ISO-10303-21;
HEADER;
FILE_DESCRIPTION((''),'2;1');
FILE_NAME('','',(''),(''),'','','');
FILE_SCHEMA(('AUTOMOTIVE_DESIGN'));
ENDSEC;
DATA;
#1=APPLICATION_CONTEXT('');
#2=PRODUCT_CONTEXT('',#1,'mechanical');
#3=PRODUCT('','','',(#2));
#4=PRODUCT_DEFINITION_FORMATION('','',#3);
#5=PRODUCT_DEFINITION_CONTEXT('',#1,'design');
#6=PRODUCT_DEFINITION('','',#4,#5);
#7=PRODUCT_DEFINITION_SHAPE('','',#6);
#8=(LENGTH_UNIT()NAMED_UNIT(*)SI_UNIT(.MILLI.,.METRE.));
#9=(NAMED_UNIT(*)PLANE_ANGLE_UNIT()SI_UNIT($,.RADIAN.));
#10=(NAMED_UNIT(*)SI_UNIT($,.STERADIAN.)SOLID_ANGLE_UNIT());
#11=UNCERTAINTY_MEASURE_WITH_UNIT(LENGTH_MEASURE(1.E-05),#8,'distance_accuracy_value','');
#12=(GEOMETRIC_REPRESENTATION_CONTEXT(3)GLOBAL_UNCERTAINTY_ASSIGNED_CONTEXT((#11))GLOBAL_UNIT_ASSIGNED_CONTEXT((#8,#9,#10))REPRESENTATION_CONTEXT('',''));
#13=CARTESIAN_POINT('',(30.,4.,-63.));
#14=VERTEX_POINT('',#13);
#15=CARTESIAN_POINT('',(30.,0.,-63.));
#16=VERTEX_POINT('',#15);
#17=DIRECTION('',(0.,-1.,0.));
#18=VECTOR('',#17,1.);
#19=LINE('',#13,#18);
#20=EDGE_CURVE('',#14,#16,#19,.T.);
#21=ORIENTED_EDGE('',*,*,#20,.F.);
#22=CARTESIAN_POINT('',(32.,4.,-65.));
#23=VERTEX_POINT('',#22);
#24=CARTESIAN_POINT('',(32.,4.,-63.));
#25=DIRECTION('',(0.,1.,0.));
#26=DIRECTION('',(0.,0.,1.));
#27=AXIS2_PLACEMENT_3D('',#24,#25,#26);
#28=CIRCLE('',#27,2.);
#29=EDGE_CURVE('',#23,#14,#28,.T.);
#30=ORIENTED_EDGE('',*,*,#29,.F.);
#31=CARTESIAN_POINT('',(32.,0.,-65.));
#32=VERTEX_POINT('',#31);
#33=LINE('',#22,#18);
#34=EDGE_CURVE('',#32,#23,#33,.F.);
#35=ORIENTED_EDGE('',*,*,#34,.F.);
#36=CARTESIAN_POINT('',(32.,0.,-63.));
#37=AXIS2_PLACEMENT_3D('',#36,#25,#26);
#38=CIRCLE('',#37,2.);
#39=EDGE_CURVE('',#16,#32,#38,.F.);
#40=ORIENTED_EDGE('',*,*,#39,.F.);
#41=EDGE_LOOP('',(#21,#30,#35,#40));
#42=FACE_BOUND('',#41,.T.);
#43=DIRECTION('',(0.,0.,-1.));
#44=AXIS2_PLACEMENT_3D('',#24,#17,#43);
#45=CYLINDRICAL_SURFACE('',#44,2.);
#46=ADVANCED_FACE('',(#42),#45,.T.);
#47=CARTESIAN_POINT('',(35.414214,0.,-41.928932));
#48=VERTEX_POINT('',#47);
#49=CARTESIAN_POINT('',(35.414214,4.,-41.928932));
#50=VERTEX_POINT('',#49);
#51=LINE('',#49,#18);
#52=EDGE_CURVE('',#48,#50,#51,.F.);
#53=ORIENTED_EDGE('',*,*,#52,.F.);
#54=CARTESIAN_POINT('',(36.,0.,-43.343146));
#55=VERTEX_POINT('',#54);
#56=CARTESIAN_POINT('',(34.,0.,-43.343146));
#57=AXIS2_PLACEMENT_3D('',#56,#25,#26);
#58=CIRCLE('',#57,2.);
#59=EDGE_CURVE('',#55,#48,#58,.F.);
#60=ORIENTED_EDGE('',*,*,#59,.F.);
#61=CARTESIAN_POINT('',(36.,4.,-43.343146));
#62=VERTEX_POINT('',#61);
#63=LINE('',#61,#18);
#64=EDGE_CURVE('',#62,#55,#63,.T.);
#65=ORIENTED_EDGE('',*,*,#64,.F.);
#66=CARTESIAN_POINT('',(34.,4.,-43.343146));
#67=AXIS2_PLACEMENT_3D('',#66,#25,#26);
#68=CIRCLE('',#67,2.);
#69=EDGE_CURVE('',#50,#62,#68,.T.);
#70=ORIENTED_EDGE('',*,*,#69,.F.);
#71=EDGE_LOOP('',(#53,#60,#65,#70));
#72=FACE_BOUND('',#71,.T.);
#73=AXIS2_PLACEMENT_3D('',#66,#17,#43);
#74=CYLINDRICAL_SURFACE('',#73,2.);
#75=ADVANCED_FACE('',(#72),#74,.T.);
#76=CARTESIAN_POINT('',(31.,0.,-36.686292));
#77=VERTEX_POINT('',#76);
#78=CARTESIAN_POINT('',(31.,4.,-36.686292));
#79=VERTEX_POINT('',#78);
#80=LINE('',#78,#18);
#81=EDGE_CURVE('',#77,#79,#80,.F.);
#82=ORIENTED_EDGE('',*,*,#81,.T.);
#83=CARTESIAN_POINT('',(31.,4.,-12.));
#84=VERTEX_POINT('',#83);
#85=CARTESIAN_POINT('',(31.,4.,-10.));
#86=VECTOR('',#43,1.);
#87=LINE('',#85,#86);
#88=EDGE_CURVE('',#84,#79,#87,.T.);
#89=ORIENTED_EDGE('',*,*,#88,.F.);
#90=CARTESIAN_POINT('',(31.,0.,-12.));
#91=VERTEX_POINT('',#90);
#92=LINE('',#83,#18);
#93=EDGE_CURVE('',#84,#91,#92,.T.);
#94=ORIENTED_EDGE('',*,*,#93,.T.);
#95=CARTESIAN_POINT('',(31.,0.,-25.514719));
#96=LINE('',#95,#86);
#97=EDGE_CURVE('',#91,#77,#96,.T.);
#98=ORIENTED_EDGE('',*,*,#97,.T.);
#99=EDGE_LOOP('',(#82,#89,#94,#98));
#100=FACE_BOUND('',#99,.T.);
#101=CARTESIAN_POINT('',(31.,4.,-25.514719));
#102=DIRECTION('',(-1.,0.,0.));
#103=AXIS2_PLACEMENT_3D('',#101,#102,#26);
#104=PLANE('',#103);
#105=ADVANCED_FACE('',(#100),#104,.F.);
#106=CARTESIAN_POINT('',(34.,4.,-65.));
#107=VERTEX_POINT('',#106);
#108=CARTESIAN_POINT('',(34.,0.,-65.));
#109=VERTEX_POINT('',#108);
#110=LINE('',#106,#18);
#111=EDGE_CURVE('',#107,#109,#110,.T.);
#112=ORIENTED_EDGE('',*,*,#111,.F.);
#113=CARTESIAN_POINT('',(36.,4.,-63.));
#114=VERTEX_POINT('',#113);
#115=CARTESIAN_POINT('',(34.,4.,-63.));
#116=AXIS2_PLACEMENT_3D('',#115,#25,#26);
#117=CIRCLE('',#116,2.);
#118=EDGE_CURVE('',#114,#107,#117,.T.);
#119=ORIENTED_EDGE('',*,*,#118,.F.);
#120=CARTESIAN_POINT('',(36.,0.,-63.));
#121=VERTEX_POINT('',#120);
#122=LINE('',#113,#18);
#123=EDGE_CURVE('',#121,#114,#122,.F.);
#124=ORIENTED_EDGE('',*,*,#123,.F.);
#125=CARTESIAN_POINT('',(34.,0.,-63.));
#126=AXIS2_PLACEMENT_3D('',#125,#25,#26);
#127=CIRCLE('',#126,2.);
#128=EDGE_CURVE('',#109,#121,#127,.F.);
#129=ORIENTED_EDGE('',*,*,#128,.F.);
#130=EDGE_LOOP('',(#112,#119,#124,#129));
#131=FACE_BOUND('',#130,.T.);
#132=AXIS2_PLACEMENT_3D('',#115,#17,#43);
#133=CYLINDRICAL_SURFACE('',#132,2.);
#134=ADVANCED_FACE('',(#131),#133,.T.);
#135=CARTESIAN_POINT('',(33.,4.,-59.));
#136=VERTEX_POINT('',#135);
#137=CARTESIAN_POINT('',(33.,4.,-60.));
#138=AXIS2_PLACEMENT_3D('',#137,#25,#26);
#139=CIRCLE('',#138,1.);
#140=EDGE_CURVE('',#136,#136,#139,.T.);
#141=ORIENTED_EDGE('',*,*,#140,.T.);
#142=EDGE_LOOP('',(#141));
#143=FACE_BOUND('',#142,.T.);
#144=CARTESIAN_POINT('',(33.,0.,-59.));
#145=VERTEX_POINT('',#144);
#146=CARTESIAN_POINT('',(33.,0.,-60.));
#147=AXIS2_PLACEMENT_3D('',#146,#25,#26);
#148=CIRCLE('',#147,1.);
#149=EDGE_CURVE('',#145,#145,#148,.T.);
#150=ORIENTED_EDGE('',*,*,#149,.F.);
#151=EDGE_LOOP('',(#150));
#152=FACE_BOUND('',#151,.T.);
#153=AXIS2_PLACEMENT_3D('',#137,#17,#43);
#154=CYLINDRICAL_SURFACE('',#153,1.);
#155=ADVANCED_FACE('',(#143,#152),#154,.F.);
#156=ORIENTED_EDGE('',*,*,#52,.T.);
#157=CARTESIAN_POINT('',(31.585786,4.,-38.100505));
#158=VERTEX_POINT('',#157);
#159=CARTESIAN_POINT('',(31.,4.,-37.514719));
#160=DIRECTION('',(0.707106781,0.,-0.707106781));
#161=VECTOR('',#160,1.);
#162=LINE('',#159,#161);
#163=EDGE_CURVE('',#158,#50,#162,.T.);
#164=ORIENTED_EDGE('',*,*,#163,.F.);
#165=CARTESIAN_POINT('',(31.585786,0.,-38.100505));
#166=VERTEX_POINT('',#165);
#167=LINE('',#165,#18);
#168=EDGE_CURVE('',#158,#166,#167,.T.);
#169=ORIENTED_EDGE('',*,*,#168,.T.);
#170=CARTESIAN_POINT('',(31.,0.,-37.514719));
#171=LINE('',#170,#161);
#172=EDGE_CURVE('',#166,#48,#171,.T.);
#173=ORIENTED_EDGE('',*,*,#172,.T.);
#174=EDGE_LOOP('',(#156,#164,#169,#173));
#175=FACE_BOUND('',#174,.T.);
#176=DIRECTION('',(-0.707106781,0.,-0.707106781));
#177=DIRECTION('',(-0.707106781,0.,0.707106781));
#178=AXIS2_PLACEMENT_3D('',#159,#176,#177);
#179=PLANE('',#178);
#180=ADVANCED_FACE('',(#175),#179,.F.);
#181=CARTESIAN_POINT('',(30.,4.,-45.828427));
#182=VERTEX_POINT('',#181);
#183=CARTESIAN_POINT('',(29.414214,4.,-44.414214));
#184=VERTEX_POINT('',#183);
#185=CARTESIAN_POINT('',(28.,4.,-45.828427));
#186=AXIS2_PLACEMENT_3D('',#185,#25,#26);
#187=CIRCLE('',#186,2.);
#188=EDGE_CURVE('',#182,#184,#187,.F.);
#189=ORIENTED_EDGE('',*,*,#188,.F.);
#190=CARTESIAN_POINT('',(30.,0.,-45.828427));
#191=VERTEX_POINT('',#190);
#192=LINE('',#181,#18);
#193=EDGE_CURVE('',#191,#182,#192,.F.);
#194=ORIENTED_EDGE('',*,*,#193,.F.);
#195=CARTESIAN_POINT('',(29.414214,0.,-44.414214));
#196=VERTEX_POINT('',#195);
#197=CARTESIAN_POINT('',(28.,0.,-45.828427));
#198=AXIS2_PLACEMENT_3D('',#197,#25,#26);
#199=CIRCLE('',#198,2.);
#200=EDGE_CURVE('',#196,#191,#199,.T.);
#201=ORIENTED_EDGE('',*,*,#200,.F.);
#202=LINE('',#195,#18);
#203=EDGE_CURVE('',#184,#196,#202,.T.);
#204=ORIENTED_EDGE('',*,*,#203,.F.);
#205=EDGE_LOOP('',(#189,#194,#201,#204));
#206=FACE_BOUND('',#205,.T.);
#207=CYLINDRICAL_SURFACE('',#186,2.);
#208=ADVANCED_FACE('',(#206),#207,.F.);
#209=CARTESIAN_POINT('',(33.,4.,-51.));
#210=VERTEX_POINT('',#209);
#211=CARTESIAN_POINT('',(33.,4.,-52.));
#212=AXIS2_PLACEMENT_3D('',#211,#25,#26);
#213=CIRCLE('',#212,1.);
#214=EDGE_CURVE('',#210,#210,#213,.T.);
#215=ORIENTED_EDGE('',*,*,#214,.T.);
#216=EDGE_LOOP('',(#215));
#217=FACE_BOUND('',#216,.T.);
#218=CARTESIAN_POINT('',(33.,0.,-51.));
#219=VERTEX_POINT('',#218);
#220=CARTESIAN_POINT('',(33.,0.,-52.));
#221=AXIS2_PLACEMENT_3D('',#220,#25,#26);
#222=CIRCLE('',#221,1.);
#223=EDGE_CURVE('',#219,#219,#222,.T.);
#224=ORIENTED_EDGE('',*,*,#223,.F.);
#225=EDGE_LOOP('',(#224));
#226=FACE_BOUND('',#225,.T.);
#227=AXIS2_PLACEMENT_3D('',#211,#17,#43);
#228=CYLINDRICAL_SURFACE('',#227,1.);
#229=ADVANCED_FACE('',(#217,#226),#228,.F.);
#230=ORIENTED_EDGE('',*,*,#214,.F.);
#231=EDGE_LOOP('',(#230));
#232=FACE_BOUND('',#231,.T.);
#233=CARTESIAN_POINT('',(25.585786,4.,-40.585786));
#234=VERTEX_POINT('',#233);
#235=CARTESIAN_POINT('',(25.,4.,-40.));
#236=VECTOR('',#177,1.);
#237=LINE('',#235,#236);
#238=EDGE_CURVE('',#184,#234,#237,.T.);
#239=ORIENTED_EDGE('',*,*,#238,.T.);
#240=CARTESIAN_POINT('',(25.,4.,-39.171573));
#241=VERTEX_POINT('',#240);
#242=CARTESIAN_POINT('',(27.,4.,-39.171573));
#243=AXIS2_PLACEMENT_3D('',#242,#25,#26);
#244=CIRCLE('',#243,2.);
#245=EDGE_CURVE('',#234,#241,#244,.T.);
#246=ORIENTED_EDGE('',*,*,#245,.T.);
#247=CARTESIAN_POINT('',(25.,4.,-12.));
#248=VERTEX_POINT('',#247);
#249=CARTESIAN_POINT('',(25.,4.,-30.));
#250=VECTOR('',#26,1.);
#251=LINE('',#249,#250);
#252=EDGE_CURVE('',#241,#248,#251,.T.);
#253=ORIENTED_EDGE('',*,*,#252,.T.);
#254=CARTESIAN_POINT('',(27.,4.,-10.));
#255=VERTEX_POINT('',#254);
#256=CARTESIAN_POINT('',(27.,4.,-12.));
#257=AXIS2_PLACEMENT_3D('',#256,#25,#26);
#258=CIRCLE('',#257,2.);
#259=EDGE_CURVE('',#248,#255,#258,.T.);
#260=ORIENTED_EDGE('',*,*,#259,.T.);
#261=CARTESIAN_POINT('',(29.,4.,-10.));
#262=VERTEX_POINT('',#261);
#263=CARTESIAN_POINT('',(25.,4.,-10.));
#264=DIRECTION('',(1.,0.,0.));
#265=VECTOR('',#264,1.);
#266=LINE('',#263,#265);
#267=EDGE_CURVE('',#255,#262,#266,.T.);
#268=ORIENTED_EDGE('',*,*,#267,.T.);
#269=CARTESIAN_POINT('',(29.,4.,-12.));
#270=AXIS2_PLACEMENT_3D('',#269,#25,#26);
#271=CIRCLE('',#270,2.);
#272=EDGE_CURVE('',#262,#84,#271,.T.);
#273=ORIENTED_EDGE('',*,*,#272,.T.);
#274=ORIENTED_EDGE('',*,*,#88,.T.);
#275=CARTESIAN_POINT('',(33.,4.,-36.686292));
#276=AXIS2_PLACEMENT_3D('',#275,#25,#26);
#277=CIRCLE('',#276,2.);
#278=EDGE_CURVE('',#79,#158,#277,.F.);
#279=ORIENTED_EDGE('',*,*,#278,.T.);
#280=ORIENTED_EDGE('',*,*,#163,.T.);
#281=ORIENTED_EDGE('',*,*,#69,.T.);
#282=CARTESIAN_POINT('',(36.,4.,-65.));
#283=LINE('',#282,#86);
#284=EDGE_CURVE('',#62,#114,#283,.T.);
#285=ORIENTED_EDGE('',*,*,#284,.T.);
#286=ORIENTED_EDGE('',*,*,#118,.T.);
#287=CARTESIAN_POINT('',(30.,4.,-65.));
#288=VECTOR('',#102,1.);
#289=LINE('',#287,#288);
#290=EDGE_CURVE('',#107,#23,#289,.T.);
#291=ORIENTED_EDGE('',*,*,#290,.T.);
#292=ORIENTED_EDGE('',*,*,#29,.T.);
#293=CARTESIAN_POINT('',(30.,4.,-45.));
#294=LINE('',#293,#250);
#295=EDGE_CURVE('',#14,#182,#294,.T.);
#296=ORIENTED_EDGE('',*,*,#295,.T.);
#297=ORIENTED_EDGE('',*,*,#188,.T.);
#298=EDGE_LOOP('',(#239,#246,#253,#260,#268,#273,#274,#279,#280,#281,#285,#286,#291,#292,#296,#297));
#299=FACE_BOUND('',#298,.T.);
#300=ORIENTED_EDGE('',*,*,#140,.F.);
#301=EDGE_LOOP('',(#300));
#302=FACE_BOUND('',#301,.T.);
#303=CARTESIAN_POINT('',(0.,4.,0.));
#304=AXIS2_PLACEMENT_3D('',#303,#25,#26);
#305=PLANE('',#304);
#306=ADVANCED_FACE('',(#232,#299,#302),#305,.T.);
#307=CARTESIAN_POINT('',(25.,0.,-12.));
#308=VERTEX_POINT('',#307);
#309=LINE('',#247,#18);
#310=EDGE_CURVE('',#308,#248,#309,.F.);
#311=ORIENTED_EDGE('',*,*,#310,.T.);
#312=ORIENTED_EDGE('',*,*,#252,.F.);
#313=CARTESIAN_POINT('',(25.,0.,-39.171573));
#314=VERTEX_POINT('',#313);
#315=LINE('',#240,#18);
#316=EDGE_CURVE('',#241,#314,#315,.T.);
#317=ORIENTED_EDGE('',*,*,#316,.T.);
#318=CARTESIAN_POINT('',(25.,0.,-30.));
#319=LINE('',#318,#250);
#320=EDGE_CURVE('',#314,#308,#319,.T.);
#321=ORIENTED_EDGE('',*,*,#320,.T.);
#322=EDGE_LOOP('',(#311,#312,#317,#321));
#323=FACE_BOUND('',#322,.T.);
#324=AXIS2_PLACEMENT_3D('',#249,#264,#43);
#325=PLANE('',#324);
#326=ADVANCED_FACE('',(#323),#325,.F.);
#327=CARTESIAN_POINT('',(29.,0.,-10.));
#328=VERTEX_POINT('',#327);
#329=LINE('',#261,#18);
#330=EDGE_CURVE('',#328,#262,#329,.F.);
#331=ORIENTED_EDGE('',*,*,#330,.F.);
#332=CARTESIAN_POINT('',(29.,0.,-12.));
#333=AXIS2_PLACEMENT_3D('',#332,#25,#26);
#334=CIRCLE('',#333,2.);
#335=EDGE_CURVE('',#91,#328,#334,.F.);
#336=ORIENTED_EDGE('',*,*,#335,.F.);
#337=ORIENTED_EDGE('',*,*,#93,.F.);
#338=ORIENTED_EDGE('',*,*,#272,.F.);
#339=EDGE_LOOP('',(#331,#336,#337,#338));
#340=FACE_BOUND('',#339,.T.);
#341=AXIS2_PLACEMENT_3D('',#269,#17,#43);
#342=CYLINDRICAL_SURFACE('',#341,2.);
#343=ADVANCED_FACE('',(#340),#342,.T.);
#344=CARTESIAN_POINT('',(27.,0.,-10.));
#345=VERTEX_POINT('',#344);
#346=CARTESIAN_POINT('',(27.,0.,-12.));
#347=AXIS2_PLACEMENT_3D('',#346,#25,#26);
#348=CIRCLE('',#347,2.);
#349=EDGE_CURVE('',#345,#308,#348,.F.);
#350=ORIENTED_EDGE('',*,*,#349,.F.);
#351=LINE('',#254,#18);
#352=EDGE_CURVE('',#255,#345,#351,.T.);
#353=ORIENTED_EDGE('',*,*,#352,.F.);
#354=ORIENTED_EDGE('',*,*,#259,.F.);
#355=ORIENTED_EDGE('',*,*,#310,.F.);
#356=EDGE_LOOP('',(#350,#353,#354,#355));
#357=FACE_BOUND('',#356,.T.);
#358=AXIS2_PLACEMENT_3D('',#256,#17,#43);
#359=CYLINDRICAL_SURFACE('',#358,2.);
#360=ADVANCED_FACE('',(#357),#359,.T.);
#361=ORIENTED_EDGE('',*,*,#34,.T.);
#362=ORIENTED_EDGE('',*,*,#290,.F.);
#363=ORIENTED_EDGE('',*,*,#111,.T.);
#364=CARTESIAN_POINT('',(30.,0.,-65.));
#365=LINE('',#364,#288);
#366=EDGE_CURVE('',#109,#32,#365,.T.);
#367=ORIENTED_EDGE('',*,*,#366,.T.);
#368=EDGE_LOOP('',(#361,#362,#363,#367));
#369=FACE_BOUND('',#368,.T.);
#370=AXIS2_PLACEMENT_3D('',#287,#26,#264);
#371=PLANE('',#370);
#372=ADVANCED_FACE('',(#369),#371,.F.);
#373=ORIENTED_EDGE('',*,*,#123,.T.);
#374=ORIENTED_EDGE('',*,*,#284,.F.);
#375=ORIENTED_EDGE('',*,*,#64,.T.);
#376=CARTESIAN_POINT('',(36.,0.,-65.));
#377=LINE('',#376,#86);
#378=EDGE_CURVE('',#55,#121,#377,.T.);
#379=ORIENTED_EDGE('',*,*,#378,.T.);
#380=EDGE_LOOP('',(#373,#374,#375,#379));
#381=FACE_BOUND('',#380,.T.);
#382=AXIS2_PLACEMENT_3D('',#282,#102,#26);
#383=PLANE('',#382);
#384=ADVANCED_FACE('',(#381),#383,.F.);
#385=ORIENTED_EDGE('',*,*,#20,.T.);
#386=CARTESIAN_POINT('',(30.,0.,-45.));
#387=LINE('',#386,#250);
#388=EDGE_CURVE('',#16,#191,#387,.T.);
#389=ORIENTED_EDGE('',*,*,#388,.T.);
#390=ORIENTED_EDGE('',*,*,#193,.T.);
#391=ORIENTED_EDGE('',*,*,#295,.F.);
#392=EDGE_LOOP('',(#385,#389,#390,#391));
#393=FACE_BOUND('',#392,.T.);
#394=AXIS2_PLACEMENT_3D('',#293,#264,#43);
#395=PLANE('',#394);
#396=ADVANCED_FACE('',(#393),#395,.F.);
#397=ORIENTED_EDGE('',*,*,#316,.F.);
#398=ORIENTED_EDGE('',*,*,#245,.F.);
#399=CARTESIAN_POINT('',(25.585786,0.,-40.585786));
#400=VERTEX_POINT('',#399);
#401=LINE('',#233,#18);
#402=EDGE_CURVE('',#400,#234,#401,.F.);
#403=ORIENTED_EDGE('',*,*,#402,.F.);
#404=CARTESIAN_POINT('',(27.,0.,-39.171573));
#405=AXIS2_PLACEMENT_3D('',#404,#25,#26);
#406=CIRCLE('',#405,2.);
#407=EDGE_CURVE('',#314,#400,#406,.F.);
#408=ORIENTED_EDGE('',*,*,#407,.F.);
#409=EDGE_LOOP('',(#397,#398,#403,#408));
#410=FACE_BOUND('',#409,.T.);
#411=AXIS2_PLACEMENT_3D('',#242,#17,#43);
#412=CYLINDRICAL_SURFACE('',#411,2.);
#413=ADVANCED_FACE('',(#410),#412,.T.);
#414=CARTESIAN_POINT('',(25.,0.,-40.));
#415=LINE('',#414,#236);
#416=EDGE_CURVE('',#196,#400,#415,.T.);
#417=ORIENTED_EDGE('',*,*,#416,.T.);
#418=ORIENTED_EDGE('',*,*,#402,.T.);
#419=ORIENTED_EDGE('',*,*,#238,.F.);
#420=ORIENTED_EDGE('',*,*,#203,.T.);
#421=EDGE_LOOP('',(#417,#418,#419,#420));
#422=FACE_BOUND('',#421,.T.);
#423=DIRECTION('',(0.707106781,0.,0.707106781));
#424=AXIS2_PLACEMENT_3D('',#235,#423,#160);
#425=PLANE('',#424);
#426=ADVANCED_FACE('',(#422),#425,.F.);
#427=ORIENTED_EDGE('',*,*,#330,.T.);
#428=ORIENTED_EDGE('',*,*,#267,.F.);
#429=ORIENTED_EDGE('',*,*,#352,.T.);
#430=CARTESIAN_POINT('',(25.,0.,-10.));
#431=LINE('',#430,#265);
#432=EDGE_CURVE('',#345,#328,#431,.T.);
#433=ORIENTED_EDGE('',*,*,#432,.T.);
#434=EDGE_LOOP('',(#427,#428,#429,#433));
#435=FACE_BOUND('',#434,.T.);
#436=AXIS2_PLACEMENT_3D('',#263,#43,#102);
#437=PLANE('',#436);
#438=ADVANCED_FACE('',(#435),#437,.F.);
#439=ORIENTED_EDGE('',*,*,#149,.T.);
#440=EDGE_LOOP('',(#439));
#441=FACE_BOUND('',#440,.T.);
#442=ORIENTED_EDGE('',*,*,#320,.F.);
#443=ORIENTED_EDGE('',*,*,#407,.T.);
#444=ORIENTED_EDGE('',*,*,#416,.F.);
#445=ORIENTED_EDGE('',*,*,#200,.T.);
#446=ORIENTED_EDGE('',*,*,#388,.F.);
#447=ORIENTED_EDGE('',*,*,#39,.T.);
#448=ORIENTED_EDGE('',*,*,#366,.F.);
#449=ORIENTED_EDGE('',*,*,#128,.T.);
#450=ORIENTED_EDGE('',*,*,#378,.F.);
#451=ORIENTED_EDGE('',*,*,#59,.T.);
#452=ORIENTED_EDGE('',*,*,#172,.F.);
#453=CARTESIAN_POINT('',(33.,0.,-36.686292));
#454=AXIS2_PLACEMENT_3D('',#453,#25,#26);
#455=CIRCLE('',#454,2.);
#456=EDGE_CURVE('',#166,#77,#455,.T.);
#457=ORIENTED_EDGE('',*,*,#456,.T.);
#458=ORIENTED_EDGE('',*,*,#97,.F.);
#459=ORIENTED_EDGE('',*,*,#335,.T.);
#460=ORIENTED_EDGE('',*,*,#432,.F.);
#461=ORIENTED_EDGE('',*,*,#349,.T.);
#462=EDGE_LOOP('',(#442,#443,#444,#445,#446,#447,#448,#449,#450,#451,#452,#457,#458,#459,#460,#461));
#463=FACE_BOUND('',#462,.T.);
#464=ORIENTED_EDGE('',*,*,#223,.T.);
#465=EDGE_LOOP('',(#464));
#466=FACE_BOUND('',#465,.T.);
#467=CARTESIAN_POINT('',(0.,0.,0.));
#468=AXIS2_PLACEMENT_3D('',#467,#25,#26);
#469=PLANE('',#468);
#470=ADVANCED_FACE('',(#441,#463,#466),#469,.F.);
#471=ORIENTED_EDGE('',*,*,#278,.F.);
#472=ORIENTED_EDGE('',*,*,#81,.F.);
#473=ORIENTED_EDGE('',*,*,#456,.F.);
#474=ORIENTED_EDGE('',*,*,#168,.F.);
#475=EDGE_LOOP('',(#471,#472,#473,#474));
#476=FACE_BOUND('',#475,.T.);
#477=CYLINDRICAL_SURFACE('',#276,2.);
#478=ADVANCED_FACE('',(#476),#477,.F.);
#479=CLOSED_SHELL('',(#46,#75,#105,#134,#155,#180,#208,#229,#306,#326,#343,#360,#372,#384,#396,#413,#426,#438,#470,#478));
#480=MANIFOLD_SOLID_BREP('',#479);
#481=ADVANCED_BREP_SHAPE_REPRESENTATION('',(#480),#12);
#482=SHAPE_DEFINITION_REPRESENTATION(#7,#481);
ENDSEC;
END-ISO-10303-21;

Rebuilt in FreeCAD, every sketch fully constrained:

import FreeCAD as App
import Part
import Sketcher

V = App.Vector
Q = App.Units.Quantity


def edges_at(feature, points):
    """Names of the edges that pass closest to the given points."""
    edges = feature.Shape.Edges
    near = lambda p: min(range(len(edges)), key=lambda i: edges[i].distToShape(Part.Vertex(*p))[0])
    return sorted({f"Edge{near(p) + 1}" for p in points})

doc = App.newDocument("Part")
body = doc.addObject("PartDesign::Body", "Body")

# Sketch on XZ plane
sketch1 = body.newObject("Sketcher::SketchObject", "Sketch")
sketch1.AttachmentSupport = (doc.getObject("XZ_Plane"), [""])
sketch1.MapMode = "FlatFace"
sketch1.addGeometry([
    Part.LineSegment(V(25, -40, 0), V(25, -10, 0)),  # 0
    Part.LineSegment(V(25, -10, 0), V(31, -10, 0)),  # 1
    Part.LineSegment(V(31, -10, 0), V(31, -37.5, 0)),  # 2
    Part.LineSegment(V(31, -37.5, 0), V(36, -42.5, 0)),  # 3
    Part.LineSegment(V(36, -42.5, 0), V(36, -65, 0)),  # 4
    Part.LineSegment(V(36, -65, 0), V(30, -65, 0)),  # 5
    Part.LineSegment(V(30, -65, 0), V(30, -45, 0)),  # 6
    Part.LineSegment(V(30, -45, 0), V(25, -40, 0)),  # 7
    Part.Circle(V(33, -52, 0), V(0, 0, 1), 1),  # 8
    Part.Circle(V(33, -60, 0), V(0, 0, 1), 1),  # 9
], False)
sketch1.addConstraint([
    Sketcher.Constraint("Coincident", 0, 2, 1, 1),
    Sketcher.Constraint("Coincident", 1, 2, 2, 1),
    Sketcher.Constraint("Coincident", 2, 2, 3, 1),
    Sketcher.Constraint("Coincident", 3, 2, 4, 1),
    Sketcher.Constraint("Coincident", 4, 2, 5, 1),
    Sketcher.Constraint("Coincident", 5, 2, 6, 1),
    Sketcher.Constraint("Coincident", 6, 2, 7, 1),
    Sketcher.Constraint("Coincident", 7, 2, 0, 1),
    Sketcher.Constraint("Vertical", 0),
    Sketcher.Constraint("Horizontal", 1),
    Sketcher.Constraint("Vertical", 2),
    Sketcher.Constraint("Vertical", 4),
    Sketcher.Constraint("Horizontal", 5),
    Sketcher.Constraint("Vertical", 6),
    Sketcher.Constraint("Equal", 8, 9),
    Sketcher.Constraint("Parallel", 3, 7),
    Sketcher.Constraint("Vertical", 8, 3, 9, 3),
    Sketcher.Constraint("Equal", 1, 5),
    Sketcher.Constraint("Diameter", 8, 2.0),
    Sketcher.Constraint("DistanceX", 1, 1, 1, 2, 6.0),
    Sketcher.Constraint("DistanceY", 0, 1, 0, 2, 30.0),
    Sketcher.Constraint("DistanceY", 6, 1, 6, 2, 20.0),
    Sketcher.Constraint("Angle", 3, Q("-45 deg")),
    Sketcher.Constraint("DistanceX", -1, 1, 8, 3, 33.0),
    Sketcher.Constraint("DistanceY", 8, 3, -1, 1, 52.0),
    Sketcher.Constraint("DistanceY", 9, 3, -1, 1, 60.0),
    Sketcher.Constraint("DistanceX", -1, 1, 0, 2, 25.0),
    Sketcher.Constraint("DistanceY", 0, 2, -1, 1, 10.0),
    Sketcher.Constraint("DistanceX", -1, 1, 3, 2, 36.0),
    Sketcher.Constraint("DistanceY", 2, 2, 2, 1, 27.514719),
])
pad1 = body.newObject("PartDesign::Pad", "Pad")
pad1.Profile = sketch1
pad1.Length = 4
pad1.Reversed = True
doc.recompute()

fillet = body.newObject("PartDesign::Fillet", "Fillet")
fillet.Base = (pad1, edges_at(pad1, [
    (25, 2, -40),
    (30, 2, -45),
    (30, 2, -65),
    (36, 2, -65),
    (36, 2, -42.515),
    (31, 2, -37.515),
    (31, 2, -10),
    (25, 2, -10),
]))
fillet.Radius = 2

doc.recompute()
